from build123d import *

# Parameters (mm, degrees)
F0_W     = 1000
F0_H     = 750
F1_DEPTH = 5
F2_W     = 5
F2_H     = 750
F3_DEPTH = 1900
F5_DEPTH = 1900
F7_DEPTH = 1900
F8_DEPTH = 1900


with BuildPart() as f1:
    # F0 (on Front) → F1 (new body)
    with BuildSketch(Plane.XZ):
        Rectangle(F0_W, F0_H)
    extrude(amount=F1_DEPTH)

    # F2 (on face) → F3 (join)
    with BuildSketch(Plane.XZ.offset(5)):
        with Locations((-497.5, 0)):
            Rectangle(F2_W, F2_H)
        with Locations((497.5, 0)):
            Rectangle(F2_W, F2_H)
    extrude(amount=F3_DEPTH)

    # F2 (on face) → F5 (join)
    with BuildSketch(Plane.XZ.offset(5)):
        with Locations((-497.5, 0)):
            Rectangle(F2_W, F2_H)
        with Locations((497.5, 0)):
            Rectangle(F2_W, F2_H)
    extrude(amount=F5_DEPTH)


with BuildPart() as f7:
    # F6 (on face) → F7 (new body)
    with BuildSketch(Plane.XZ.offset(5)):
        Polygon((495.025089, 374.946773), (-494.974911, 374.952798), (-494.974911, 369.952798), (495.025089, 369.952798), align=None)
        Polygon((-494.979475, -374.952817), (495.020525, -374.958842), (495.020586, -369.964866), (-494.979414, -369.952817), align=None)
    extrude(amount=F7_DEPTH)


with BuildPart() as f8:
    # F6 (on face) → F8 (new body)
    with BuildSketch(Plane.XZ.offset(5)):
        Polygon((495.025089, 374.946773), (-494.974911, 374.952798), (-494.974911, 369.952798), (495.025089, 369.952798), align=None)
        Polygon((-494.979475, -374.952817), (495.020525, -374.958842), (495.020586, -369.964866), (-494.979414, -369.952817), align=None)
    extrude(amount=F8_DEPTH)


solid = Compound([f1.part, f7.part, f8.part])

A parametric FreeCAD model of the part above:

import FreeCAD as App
import Part
import Sketcher
from FreeCAD import Vector
Q = App.Units.Quantity

doc = App.newDocument("Part")
body = doc.addObject("PartDesign::Body", "Body")

sketch1 = body.newObject("Sketcher::SketchObject", "Sketch")
sketch1.AttachmentSupport = (doc.getObject("XZ_Plane"), [""])
sketch1.MapMode = "FlatFace"
sketch1.addGeometry(Part.LineSegment(Vector(-500, 375, 0), Vector(-500, -375, 0)), False)
sketch1.addGeometry(Part.LineSegment(Vector(-500, -375, 0), Vector(500, -375, 0)), False)
sketch1.addGeometry(Part.LineSegment(Vector(500, -375, 0), Vector(500, 375, 0)), False)
sketch1.addGeometry(Part.LineSegment(Vector(500, 375, 0), Vector(-500, 375, 0)), False)
sketch1.addConstraint(Sketcher.Constraint("Coincident", 0, 2, 1, 1))
sketch1.addConstraint(Sketcher.Constraint("Coincident", 1, 2, 2, 1))
sketch1.addConstraint(Sketcher.Constraint("Coincident", 2, 2, 3, 1))
sketch1.addConstraint(Sketcher.Constraint("Coincident", 3, 2, 0, 1))
sketch1.addConstraint(Sketcher.Constraint("Vertical", 0))
sketch1.addConstraint(Sketcher.Constraint("Horizontal", 1))
sketch1.addConstraint(Sketcher.Constraint("Vertical", 2))
sketch1.addConstraint(Sketcher.Constraint("Horizontal", 3))
sketch1.addConstraint(Sketcher.Constraint("Symmetric", 0, 2, 2, 2, -1, 1))
sketch1.addConstraint(Sketcher.Constraint("DistanceX", 1, 1, 1, 2, Q("1000 mm")))
sketch1.addConstraint(Sketcher.Constraint("DistanceY", 0, 2, 0, 1, Q("750 mm")))
pad1 = body.newObject("PartDesign::Pad", "Pad")
pad1.Profile = sketch1
pad1.Length = 5

sketch2 = body.newObject("Sketcher::SketchObject", "Sketch001")
sketch2.AttachmentSupport = (doc.getObject("XZ_Plane"), [""])
sketch2.MapMode = "FlatFace"
sketch2.AttachmentOffset = App.Placement(Vector(0, 0, 5), App.Rotation())
sketch2.addGeometry(Part.LineSegment(Vector(-500, 375, 0), Vector(-500, -375, 0)), False)
sketch2.addGeometry(Part.LineSegment(Vector(-500, -375, 0), Vector(-495, -375, 0)), False)
sketch2.addGeometry(Part.LineSegment(Vector(-495, -375, 0), Vector(-495, 375, 0)), False)
sketch2.addGeometry(Part.LineSegment(Vector(-495, 375, 0), Vector(-500, 375, 0)), False)
sketch2.addGeometry(Part.LineSegment(Vector(495, 375, 0), Vector(495, -375, 0)), False)
sketch2.addGeometry(Part.LineSegment(Vector(495, -375, 0), Vector(500, -375, 0)), False)
sketch2.addGeometry(Part.LineSegment(Vector(500, -375, 0), Vector(500, 375, 0)), False)
sketch2.addGeometry(Part.LineSegment(Vector(500, 375, 0), Vector(495, 375, 0)), False)
sketch2.addConstraint(Sketcher.Constraint("Coincident", 0, 2, 1, 1))
sketch2.addConstraint(Sketcher.Constraint("Coincident", 1, 2, 2, 1))
sketch2.addConstraint(Sketcher.Constraint("Coincident", 2, 2, 3, 1))
sketch2.addConstraint(Sketcher.Constraint("Coincident", 3, 2, 0, 1))
sketch2.addConstraint(Sketcher.Constraint("Coincident", 4, 2, 5, 1))
sketch2.addConstraint(Sketcher.Constraint("Coincident", 5, 2, 6, 1))
sketch2.addConstraint(Sketcher.Constraint("Coincident", 6, 2, 7, 1))
sketch2.addConstraint(Sketcher.Constraint("Coincident", 7, 2, 4, 1))
sketch2.addConstraint(Sketcher.Constraint("Vertical", 0))
sketch2.addConstraint(Sketcher.Constraint("Horizontal", 1))
sketch2.addConstraint(Sketcher.Constraint("Vertical", 2))
sketch2.addConstraint(Sketcher.Constraint("Horizontal", 3))
sketch2.addConstraint(Sketcher.Constraint("Vertical", 4))
sketch2.addConstraint(Sketcher.Constraint("Horizontal", 5))
sketch2.addConstraint(Sketcher.Constraint("Vertical", 6))
sketch2.addConstraint(Sketcher.Constraint("Horizontal", 7))
sketch2.addConstraint(Sketcher.Constraint("Symmetric", 2, 2, 4, 2, -1, 1))
sketch2.addConstraint(Sketcher.Constraint("Symmetric", 0, 2, 6, 2, -1, 1))
sketch2.addConstraint(Sketcher.Constraint("Horizontal", 1, 2, 4, 2))
sketch2.addConstraint(Sketcher.Constraint("DistanceX", 1, 1, 1, 2, Q("5 mm")))
sketch2.addConstraint(Sketcher.Constraint("DistanceY", 0, 2, 0, 1, Q("750 mm")))
sketch2.addConstraint(Sketcher.Constraint("DistanceX", 0, 2, -1, 1, Q("500 mm")))
pad2 = body.newObject("PartDesign::Pad", "Pad001")
pad2.Profile = sketch2
pad2.Length = 1900

sketch3 = body.newObject("Sketcher::SketchObject", "Sketch002")
sketch3.AttachmentSupport = (doc.getObject("XZ_Plane"), [""])
sketch3.MapMode = "FlatFace"
sketch3.AttachmentOffset = App.Placement(Vector(0, 0, 5), App.Rotation())
sketch3.addGeometry(Part.LineSegment(Vector(-500, 375, 0), Vector(-500, -375, 0)), False)
sketch3.addGeometry(Part.LineSegment(Vector(-500, -375, 0), Vector(-495, -375, 0)), False)
sketch3.addGeometry(Part.LineSegment(Vector(-495, -375, 0), Vector(-495, 375, 0)), False)
sketch3.addGeometry(Part.LineSegment(Vector(-495, 375, 0), Vector(-500, 375, 0)), False)
sketch3.addGeometry(Part.LineSegment(Vector(495, 375, 0), Vector(495, -375, 0)), False)
sketch3.addGeometry(Part.LineSegment(Vector(495, -375, 0), Vector(500, -375, 0)), False)
sketch3.addGeometry(Part.LineSegment(Vector(500, -375, 0), Vector(500, 375, 0)), False)
sketch3.addGeometry(Part.LineSegment(Vector(500, 375, 0), Vector(495, 375, 0)), False)
sketch3.addConstraint(Sketcher.Constraint("Coincident", 0, 2, 1, 1))
sketch3.addConstraint(Sketcher.Constraint("Coincident", 1, 2, 2, 1))
sketch3.addConstraint(Sketcher.Constraint("Coincident", 2, 2, 3, 1))
sketch3.addConstraint(Sketcher.Constraint("Coincident", 3, 2, 0, 1))
sketch3.addConstraint(Sketcher.Constraint("Coincident", 4, 2, 5, 1))
sketch3.addConstraint(Sketcher.Constraint("Coincident", 5, 2, 6, 1))
sketch3.addConstraint(Sketcher.Constraint("Coincident", 6, 2, 7, 1))
sketch3.addConstraint(Sketcher.Constraint("Coincident", 7, 2, 4, 1))
sketch3.addConstraint(Sketcher.Constraint("Vertical", 0))
sketch3.addConstraint(Sketcher.Constraint("Horizontal", 1))
sketch3.addConstraint(Sketcher.Constraint("Vertical", 2))
sketch3.addConstraint(Sketcher.Constraint("Horizontal", 3))
sketch3.addConstraint(Sketcher.Constraint("Vertical", 4))
sketch3.addConstraint(Sketcher.Constraint("Horizontal", 5))
sketch3.addConstraint(Sketcher.Constraint("Vertical", 6))
sketch3.addConstraint(Sketcher.Constraint("Horizontal", 7))
sketch3.addConstraint(Sketcher.Constraint("Symmetric", 2, 2, 4, 2, -1, 1))
sketch3.addConstraint(Sketcher.Constraint("Symmetric", 0, 2, 6, 2, -1, 1))
sketch3.addConstraint(Sketcher.Constraint("Horizontal", 1, 2, 4, 2))
sketch3.addConstraint(Sketcher.Constraint("DistanceX", 1, 1, 1, 2, Q("5 mm")))
sketch3.addConstraint(Sketcher.Constraint("DistanceY", 0, 2, 0, 1, Q("750 mm")))
sketch3.addConstraint(Sketcher.Constraint("DistanceX", 0, 2, -1, 1, Q("500 mm")))
pad3 = body.newObject("PartDesign::Pad", "Pad002")
pad3.Profile = sketch3
pad3.Length = 1900
body2 = doc.addObject("PartDesign::Body", "Body001")
body2.AllowCompound = True

sketch4 = body2.newObject("Sketcher::SketchObject", "Sketch003")
sketch4.AttachmentSupport = (doc.getObject("XZ_Plane001"), [""])
sketch4.MapMode = "FlatFace"
sketch4.AttachmentOffset = App.Placement(Vector(0, 0, 5), App.Rotation())
sketch4.addGeometry(Part.LineSegment(Vector(495, 374.9, 0), Vector(-495, 375, 0)), False)
sketch4.addGeometry(Part.LineSegment(Vector(-495, 375, 0), Vector(-495, 370, 0)), False)
sketch4.addGeometry(Part.LineSegment(Vector(-495, 370, 0), Vector(495, 370, 0)), False)
sketch4.addGeometry(Part.LineSegment(Vector(495, 370, 0), Vector(495, 374.9, 0)), False)
sketch4.addGeometry(Part.LineSegment(Vector(-495, -375, 0), Vector(495, -375, 0)), False)
sketch4.addGeometry(Part.LineSegment(Vector(495, -375, 0), Vector(495, -370, 0)), False)
sketch4.addGeometry(Part.LineSegment(Vector(495, -370, 0), Vector(-495, -370, 0)), False)
sketch4.addGeometry(Part.LineSegment(Vector(-495, -370, 0), Vector(-495, -375, 0)), False)
sketch4.addConstraint(Sketcher.Constraint("Coincident", 0, 2, 1, 1))
sketch4.addConstraint(Sketcher.Constraint("Coincident", 1, 2, 2, 1))
sketch4.addConstraint(Sketcher.Constraint("Coincident", 2, 2, 3, 1))
sketch4.addConstraint(Sketcher.Constraint("Coincident", 3, 2, 0, 1))
sketch4.addConstraint(Sketcher.Constraint("Coincident", 4, 2, 5, 1))
sketch4.addConstraint(Sketcher.Constraint("Coincident", 5, 2, 6, 1))
sketch4.addConstraint(Sketcher.Constraint("Coincident", 6, 2, 7, 1))
sketch4.addConstraint(Sketcher.Constraint("Coincident", 7, 2, 4, 1))
sketch4.addConstraint(Sketcher.Constraint("Vertical", 1))
sketch4.addConstraint(Sketcher.Constraint("Horizontal", 2))
sketch4.addConstraint(Sketcher.Constraint("Vertical", 3))
sketch4.addConstraint(Sketcher.Constraint("Parallel", 0, 4))
sketch4.addConstraint(Sketcher.Constraint("Perpendicular", 5, 6))
sketch4.addConstraint(Sketcher.Constraint("Perpendicular", 6, 7))
sketch4.addConstraint(Sketcher.Constraint("Equal", 0, 4))
sketch4.addConstraint(Sketcher.Constraint("DistanceX", 2, 1, 2, 2, Q("990 mm")))
sketch4.addConstraint(Sketcher.Constraint("DistanceY", 1, 2, 1, 1, Q("5 mm")))
sketch4.addConstraint(Sketcher.Constraint("Distance", 7, Q("5 mm")))
sketch4.addConstraint(Sketcher.Constraint("DistanceY", 3, 1, 3, 2, Q("4.993975 mm")))
sketch4.addConstraint(Sketcher.Constraint("DistanceX", 0, 2, -1, 1, Q("494.974911 mm")))
sketch4.addConstraint(Sketcher.Constraint("DistanceY", 4, 2, -1, 1, Q("374.958842 mm")))
sketch4.addConstraint(Sketcher.Constraint("DistanceY", 4, 2, 2, 2, Q("744.91164 mm")))
sketch4.addConstraint(Sketcher.Constraint("DistanceY", 5, 2, 3, 2, Q("744.911639 mm")))
sketch4.addConstraint(Sketcher.Constraint("DistanceX", -1, 1, 4, 2, Q("495.020525 mm")))
pad4 = body2.newObject("PartDesign::Pad", "Pad003")
pad4.Profile = sketch4
pad4.Length = 1900
body3 = doc.addObject("PartDesign::Body", "Body002")
body3.AllowCompound = True

sketch5 = body3.newObject("Sketcher::SketchObject", "Sketch004")
sketch5.AttachmentSupport = (doc.getObject("XZ_Plane002"), [""])
sketch5.MapMode = "FlatFace"
sketch5.AttachmentOffset = App.Placement(Vector(0, 0, 5), App.Rotation())
sketch5.addGeometry(Part.LineSegment(Vector(495, 374.9, 0), Vector(-495, 375, 0)), False)
sketch5.addGeometry(Part.LineSegment(Vector(-495, 375, 0), Vector(-495, 370, 0)), False)
sketch5.addGeometry(Part.LineSegment(Vector(-495, 370, 0), Vector(495, 370, 0)), False)
sketch5.addGeometry(Part.LineSegment(Vector(495, 370, 0), Vector(495, 374.9, 0)), False)
sketch5.addGeometry(Part.LineSegment(Vector(-495, -375, 0), Vector(495, -375, 0)), False)
sketch5.addGeometry(Part.LineSegment(Vector(495, -375, 0), Vector(495, -370, 0)), False)
sketch5.addGeometry(Part.LineSegment(Vector(495, -370, 0), Vector(-495, -370, 0)), False)
sketch5.addGeometry(Part.LineSegment(Vector(-495, -370, 0), Vector(-495, -375, 0)), False)
sketch5.addConstraint(Sketcher.Constraint("Coincident", 0, 2, 1, 1))
sketch5.addConstraint(Sketcher.Constraint("Coincident", 1, 2, 2, 1))
sketch5.addConstraint(Sketcher.Constraint("Coincident", 2, 2, 3, 1))
sketch5.addConstraint(Sketcher.Constraint("Coincident", 3, 2, 0, 1))
sketch5.addConstraint(Sketcher.Constraint("Coincident", 4, 2, 5, 1))
sketch5.addConstraint(Sketcher.Constraint("Coincident", 5, 2, 6, 1))
sketch5.addConstraint(Sketcher.Constraint("Coincident", 6, 2, 7, 1))
sketch5.addConstraint(Sketcher.Constraint("Coincident", 7, 2, 4, 1))
sketch5.addConstraint(Sketcher.Constraint("Vertical", 1))
sketch5.addConstraint(Sketcher.Constraint("Horizontal", 2))
sketch5.addConstraint(Sketcher.Constraint("Vertical", 3))
sketch5.addConstraint(Sketcher.Constraint("Parallel", 0, 4))
sketch5.addConstraint(Sketcher.Constraint("Perpendicular", 5, 6))
sketch5.addConstraint(Sketcher.Constraint("Perpendicular", 6, 7))
sketch5.addConstraint(Sketcher.Constraint("Equal", 0, 4))
sketch5.addConstraint(Sketcher.Constraint("DistanceX", 2, 1, 2, 2, Q("990 mm")))
sketch5.addConstraint(Sketcher.Constraint("DistanceY", 1, 2, 1, 1, Q("5 mm")))
sketch5.addConstraint(Sketcher.Constraint("Distance", 7, Q("5 mm")))
sketch5.addConstraint(Sketcher.Constraint("DistanceY", 3, 1, 3, 2, Q("4.993975 mm")))
sketch5.addConstraint(Sketcher.Constraint("DistanceX", 0, 2, -1, 1, Q("494.974911 mm")))
sketch5.addConstraint(Sketcher.Constraint("DistanceY", 4, 2, -1, 1, Q("374.958842 mm")))
sketch5.addConstraint(Sketcher.Constraint("DistanceY", 4, 2, 2, 2, Q("744.91164 mm")))
sketch5.addConstraint(Sketcher.Constraint("DistanceY", 5, 2, 3, 2, Q("744.911639 mm")))
sketch5.addConstraint(Sketcher.Constraint("DistanceX", -1, 1, 4, 2, Q("495.020525 mm")))
pad5 = body3.newObject("PartDesign::Pad", "Pad004")
pad5.Profile = sketch5
pad5.Length = 1900

doc.recompute()
